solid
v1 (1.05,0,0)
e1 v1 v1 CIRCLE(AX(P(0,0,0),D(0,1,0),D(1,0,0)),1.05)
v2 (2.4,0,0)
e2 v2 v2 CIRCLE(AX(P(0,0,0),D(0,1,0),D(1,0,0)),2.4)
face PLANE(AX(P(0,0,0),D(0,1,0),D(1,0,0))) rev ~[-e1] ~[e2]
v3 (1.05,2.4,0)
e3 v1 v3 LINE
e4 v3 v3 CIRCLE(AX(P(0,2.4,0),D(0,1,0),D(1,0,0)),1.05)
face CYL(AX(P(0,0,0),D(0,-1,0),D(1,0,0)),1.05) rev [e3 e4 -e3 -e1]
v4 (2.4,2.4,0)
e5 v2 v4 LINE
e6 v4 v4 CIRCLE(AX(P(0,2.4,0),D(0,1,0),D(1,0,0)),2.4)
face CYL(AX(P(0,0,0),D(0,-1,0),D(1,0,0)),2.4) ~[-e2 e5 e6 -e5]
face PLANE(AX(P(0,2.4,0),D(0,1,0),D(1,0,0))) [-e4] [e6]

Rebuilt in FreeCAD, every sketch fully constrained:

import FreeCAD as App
import Part
import Sketcher
from FreeCAD import Vector
Q = App.Units.Quantity

doc = App.newDocument("Part")
body = doc.addObject("PartDesign::Body", "Body")

# Sketch on XZ plane
sketch1 = body.newObject("Sketcher::SketchObject", "Sketch")
sketch1.AttachmentSupport = (doc.getObject("XZ_Plane"), [""])
sketch1.MapMode = "FlatFace"
sketch1.addGeometry([
    Part.Circle(Vector(0, 0, 0), Vector(0, 0, 1), 2.4),
    Part.Circle(Vector(0, 0, 0), Vector(0, 0, 1), 1.1),
], False)
sketch1.addConstraint([
    Sketcher.Constraint("Coincident", 0, 3, -1, 1),
    Sketcher.Constraint("Coincident", 1, 3, -1, 1),
    Sketcher.Constraint("Diameter", 0, Q("4.8 mm")),
    Sketcher.Constraint("Diameter", 1, Q("2.1 mm")),
])
pad1 = body.newObject("PartDesign::Pad", "Pad")
pad1.Profile = sketch1
pad1.Length = 2.4
pad1.Reversed = True

doc.recompute()
